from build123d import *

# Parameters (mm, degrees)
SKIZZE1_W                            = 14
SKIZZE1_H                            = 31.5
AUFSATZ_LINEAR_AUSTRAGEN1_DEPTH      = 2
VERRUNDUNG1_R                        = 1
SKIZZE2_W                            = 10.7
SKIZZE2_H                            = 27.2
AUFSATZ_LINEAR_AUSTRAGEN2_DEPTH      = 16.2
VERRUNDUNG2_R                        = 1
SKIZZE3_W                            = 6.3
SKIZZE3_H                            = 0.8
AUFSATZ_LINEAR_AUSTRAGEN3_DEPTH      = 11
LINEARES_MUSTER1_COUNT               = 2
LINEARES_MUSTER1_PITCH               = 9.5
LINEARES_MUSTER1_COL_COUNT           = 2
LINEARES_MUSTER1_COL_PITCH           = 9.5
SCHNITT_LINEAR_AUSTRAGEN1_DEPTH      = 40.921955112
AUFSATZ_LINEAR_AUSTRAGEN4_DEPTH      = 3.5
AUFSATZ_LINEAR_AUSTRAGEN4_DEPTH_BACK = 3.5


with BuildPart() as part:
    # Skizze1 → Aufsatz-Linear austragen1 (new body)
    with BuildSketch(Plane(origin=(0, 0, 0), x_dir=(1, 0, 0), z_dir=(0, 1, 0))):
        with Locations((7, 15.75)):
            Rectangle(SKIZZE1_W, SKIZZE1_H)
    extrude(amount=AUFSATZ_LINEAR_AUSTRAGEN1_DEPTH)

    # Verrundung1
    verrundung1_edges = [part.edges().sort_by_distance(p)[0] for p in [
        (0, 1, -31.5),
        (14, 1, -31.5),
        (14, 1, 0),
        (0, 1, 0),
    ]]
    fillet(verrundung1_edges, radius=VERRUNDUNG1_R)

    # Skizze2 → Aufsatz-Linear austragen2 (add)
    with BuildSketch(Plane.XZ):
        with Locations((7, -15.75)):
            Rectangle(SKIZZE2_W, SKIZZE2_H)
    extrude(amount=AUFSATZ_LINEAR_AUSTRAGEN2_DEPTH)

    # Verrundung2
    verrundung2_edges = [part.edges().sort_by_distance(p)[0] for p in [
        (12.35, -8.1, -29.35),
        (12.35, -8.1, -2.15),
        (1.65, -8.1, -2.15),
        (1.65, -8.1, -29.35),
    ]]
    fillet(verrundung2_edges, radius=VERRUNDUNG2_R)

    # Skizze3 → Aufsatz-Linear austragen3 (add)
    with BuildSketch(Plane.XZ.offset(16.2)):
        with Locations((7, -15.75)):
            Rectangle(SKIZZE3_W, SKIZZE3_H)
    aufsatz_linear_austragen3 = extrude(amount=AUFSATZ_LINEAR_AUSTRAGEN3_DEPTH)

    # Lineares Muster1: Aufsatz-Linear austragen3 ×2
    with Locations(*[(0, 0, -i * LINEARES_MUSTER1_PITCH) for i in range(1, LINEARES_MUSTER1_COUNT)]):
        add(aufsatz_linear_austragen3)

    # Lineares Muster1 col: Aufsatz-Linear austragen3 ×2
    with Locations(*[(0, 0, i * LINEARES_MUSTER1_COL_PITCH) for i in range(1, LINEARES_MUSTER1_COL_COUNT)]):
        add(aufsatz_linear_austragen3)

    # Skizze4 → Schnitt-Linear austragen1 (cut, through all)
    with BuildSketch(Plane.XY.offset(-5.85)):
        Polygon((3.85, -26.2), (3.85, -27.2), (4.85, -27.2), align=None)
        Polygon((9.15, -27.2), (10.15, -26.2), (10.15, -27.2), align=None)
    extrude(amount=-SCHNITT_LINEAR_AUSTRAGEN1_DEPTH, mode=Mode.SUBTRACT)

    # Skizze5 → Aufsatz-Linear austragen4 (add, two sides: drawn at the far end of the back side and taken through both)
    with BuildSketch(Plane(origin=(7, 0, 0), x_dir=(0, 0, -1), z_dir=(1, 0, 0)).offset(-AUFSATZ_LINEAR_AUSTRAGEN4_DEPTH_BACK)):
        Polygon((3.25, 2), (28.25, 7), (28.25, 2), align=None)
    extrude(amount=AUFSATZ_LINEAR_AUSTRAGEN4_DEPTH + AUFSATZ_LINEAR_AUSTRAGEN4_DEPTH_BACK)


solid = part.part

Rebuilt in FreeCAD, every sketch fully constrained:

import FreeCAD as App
import Part
import Sketcher
from FreeCAD import Vector
Q = App.Units.Quantity


def edges_at(feature, points):
    """Names of the edges that pass closest to the given points."""
    edges = feature.Shape.Edges
    near = lambda p: min(range(len(edges)), key=lambda i: edges[i].distToShape(Part.Vertex(*p))[0])
    return sorted({f"Edge{near(p) + 1}" for p in points})

doc = App.newDocument("Part")
body = doc.addObject("PartDesign::Body", "Body")

# Sketch on XZ plane
sketch1 = body.newObject("Sketcher::SketchObject", "Sketch")
sketch1.AttachmentSupport = (doc.getObject("XZ_Plane"), [""])
sketch1.MapMode = "FlatFace"
sketch1.addGeometry(Part.LineSegment(Vector(0, -31.5, 0), Vector(0, 0, 0)), False)
sketch1.addGeometry(Part.LineSegment(Vector(0, 0, 0), Vector(14, 0, 0)), False)
sketch1.addGeometry(Part.LineSegment(Vector(14, 0, 0), Vector(14, -31.5, 0)), False)
sketch1.addGeometry(Part.LineSegment(Vector(14, -31.5, 0), Vector(0, -31.5, 0)), False)
sketch1.addConstraint(Sketcher.Constraint("Coincident", 0, 2, 1, 1))
sketch1.addConstraint(Sketcher.Constraint("Coincident", 1, 2, 2, 1))
sketch1.addConstraint(Sketcher.Constraint("Coincident", 2, 2, 3, 1))
sketch1.addConstraint(Sketcher.Constraint("Coincident", 3, 2, 0, 1))
sketch1.addConstraint(Sketcher.Constraint("Vertical", 0))
sketch1.addConstraint(Sketcher.Constraint("Horizontal", 1))
sketch1.addConstraint(Sketcher.Constraint("Vertical", 2))
sketch1.addConstraint(Sketcher.Constraint("Horizontal", 3))
sketch1.addConstraint(Sketcher.Constraint("Coincident", 0, 2, -1, 1))
sketch1.addConstraint(Sketcher.Constraint("DistanceX", 1, 1, 1, 2, Q("14 mm")))
sketch1.addConstraint(Sketcher.Constraint("DistanceY", 0, 1, 0, 2, Q("31.5 mm")))
pad1 = body.newObject("PartDesign::Pad", "Pad")
pad1.Profile = sketch1
pad1.Length = 2
pad1.Reversed = True
doc.recompute()

fillet = body.newObject("PartDesign::Fillet", "Fillet")
fillet.Base = (pad1, edges_at(pad1, [
    (0, 1, -31.5),
    (14, 1, -31.5),
    (14, 1, 0),
    (0, 1, 0),
]))
fillet.Radius = 1

# Sketch on XZ plane
sketch2 = body.newObject("Sketcher::SketchObject", "Sketch001")
sketch2.AttachmentSupport = (doc.getObject("XZ_Plane"), [""])
sketch2.MapMode = "FlatFace"
sketch2.addGeometry(Part.LineSegment(Vector(1.65, -2.15, 0), Vector(1.65, -29.35, 0)), False)
sketch2.addGeometry(Part.LineSegment(Vector(1.65, -29.35, 0), Vector(12.35, -29.35, 0)), False)
sketch2.addGeometry(Part.LineSegment(Vector(12.35, -29.35, 0), Vector(12.35, -2.15, 0)), False)
sketch2.addGeometry(Part.LineSegment(Vector(12.35, -2.15, 0), Vector(1.65, -2.15, 0)), False)
sketch2.addConstraint(Sketcher.Constraint("Coincident", 0, 2, 1, 1))
sketch2.addConstraint(Sketcher.Constraint("Coincident", 1, 2, 2, 1))
sketch2.addConstraint(Sketcher.Constraint("Coincident", 2, 2, 3, 1))
sketch2.addConstraint(Sketcher.Constraint("Coincident", 3, 2, 0, 1))
sketch2.addConstraint(Sketcher.Constraint("Vertical", 0))
sketch2.addConstraint(Sketcher.Constraint("Horizontal", 1))
sketch2.addConstraint(Sketcher.Constraint("Vertical", 2))
sketch2.addConstraint(Sketcher.Constraint("Horizontal", 3))
sketch2.addConstraint(Sketcher.Constraint("DistanceX", 1, 1, 1, 2, Q("10.7 mm")))
sketch2.addConstraint(Sketcher.Constraint("DistanceY", 0, 2, 0, 1, Q("27.2 mm")))
sketch2.addConstraint(Sketcher.Constraint("DistanceX", -1, 1, 0, 2, Q("1.65 mm")))
sketch2.addConstraint(Sketcher.Constraint("DistanceY", 0, 2, -1, 1, Q("29.35 mm")))
pad2 = body.newObject("PartDesign::Pad", "Pad001")
pad2.Profile = sketch2
pad2.Length = 16.2
doc.recompute()

fillet2 = body.newObject("PartDesign::Fillet", "Fillet001")
fillet2.Base = (pad2, edges_at(pad2, [
    (12.35, -8.1, -29.35),
    (12.35, -8.1, -2.15),
    (1.65, -8.1, -2.15),
    (1.65, -8.1, -29.35),
]))
fillet2.Radius = 1

# Sketch on XZ plane
sketch3 = body.newObject("Sketcher::SketchObject", "Sketch002")
sketch3.AttachmentSupport = (doc.getObject("XZ_Plane"), [""])
sketch3.MapMode = "FlatFace"
sketch3.AttachmentOffset = App.Placement(Vector(0, 0, 16.2), App.Rotation())
sketch3.addGeometry(Part.LineSegment(Vector(3.85, -15.35, 0), Vector(3.85, -16.15, 0)), False)
sketch3.addGeometry(Part.LineSegment(Vector(3.85, -16.15, 0), Vector(10.15, -16.15, 0)), False)
sketch3.addGeometry(Part.LineSegment(Vector(10.15, -16.15, 0), Vector(10.15, -15.35, 0)), False)
sketch3.addGeometry(Part.LineSegment(Vector(10.15, -15.35, 0), Vector(3.85, -15.35, 0)), False)
sketch3.addConstraint(Sketcher.Constraint("Coincident", 0, 2, 1, 1))
sketch3.addConstraint(Sketcher.Constraint("Coincident", 1, 2, 2, 1))
sketch3.addConstraint(Sketcher.Constraint("Coincident", 2, 2, 3, 1))
sketch3.addConstraint(Sketcher.Constraint("Coincident", 3, 2, 0, 1))
sketch3.addConstraint(Sketcher.Constraint("Vertical", 0))
sketch3.addConstraint(Sketcher.Constraint("Horizontal", 1))
sketch3.addConstraint(Sketcher.Constraint("Vertical", 2))
sketch3.addConstraint(Sketcher.Constraint("Horizontal", 3))
sketch3.addConstraint(Sketcher.Constraint("DistanceX", 1, 1, 1, 2, Q("6.3 mm")))
sketch3.addConstraint(Sketcher.Constraint("DistanceY", 0, 2, 0, 1, Q("0.8 mm")))
sketch3.addConstraint(Sketcher.Constraint("DistanceX", -1, 1, 0, 2, Q("3.85 mm")))
sketch3.addConstraint(Sketcher.Constraint("DistanceY", 0, 2, -1, 1, Q("16.15 mm")))
pad3 = body.newObject("PartDesign::Pad", "Pad002")
pad3.Profile = sketch3
pad3.Length = 11
doc.recompute()

linearpattern = body.newObject("PartDesign::LinearPattern", "LinearPattern")
linearpattern.Originals = [pad3]
linearpattern.Direction = (doc.getObject("Z_Axis"), [""])
linearpattern.Mode = "offset"
linearpattern.Offset = 9.5
linearpattern.Occurrences = 2
linearpattern.Reversed = True
body.Tip = linearpattern
doc.recompute()

linearpattern2 = body.newObject("PartDesign::LinearPattern", "LinearPattern001")
linearpattern2.Originals = [pad3]
linearpattern2.Direction = (doc.getObject("Z_Axis"), [""])
linearpattern2.Mode = "offset"
linearpattern2.Offset = 9.5
linearpattern2.Occurrences = 2
body.Tip = linearpattern2

# Sketch on XY plane
sketch4 = body.newObject("Sketcher::SketchObject", "Sketch003")
sketch4.AttachmentSupport = (doc.getObject("XY_Plane"), [""])
sketch4.MapMode = "FlatFace"
sketch4.AttachmentOffset = App.Placement(Vector(0, 0, -5.85), App.Rotation())
sketch4.addGeometry(Part.LineSegment(Vector(3.85, -26.2, 0), Vector(3.85, -27.2, 0)), False)
sketch4.addGeometry(Part.LineSegment(Vector(3.85, -27.2, 0), Vector(4.85, -27.2, 0)), False)
sketch4.addGeometry(Part.LineSegment(Vector(4.85, -27.2, 0), Vector(3.85, -26.2, 0)), False)
sketch4.addGeometry(Part.LineSegment(Vector(10.15, -26.2, 0), Vector(9.15, -27.2, 0)), False)
sketch4.addGeometry(Part.LineSegment(Vector(9.15, -27.2, 0), Vector(10.15, -27.2, 0)), False)
sketch4.addGeometry(Part.LineSegment(Vector(10.15, -27.2, 0), Vector(10.15, -26.2, 0)), False)
sketch4.addConstraint(Sketcher.Constraint("Coincident", 0, 2, 1, 1))
sketch4.addConstraint(Sketcher.Constraint("Coincident", 1, 2, 2, 1))
sketch4.addConstraint(Sketcher.Constraint("Coincident", 2, 2, 0, 1))
sketch4.addConstraint(Sketcher.Constraint("Coincident", 3, 2, 4, 1))
sketch4.addConstraint(Sketcher.Constraint("Coincident", 4, 2, 5, 1))
sketch4.addConstraint(Sketcher.Constraint("Coincident", 5, 2, 3, 1))
sketch4.addConstraint(Sketcher.Constraint("Vertical", 0))
sketch4.addConstraint(Sketcher.Constraint("Horizontal", 1))
sketch4.addConstraint(Sketcher.Constraint("Horizontal", 4))
sketch4.addConstraint(Sketcher.Constraint("Vertical", 5))
sketch4.addConstraint(Sketcher.Constraint("Perpendicular", 2, 3))
sketch4.addConstraint(Sketcher.Constraint("Horizontal", 1, 2, 3, 2))
sketch4.addConstraint(Sketcher.Constraint("Horizontal", 2, 2, 5, 2))
sketch4.addConstraint(Sketcher.Constraint("Equal", 1, 4))
sketch4.addConstraint(Sketcher.Constraint("DistanceX", 1, 1, 1, 2, Q("1 mm")))
sketch4.addConstraint(Sketcher.Constraint("DistanceY", 0, 2, -1, 1, Q("27.2 mm")))
sketch4.addConstraint(Sketcher.Constraint("DistanceX", 1, 2, 3, 2, Q("4.3 mm")))
sketch4.addConstraint(Sketcher.Constraint("DistanceX", -1, 1, 0, 2, Q("3.85 mm")))
pocket1 = body.newObject("PartDesign::Pocket", "Pocket")
pocket1.Profile = sketch4
pocket1.Type = "ThroughAll"

# Sketch on YZ plane
sketch5 = body.newObject("Sketcher::SketchObject", "Sketch004")
sketch5.AttachmentSupport = (doc.getObject("YZ_Plane"), [""])
sketch5.MapMode = "FlatFace"
sketch5.AttachmentOffset = App.Placement(Vector(0, 0, 7), App.Rotation())
sketch5.addGeometry(Part.LineSegment(Vector(7, -28.25, 0), Vector(2, -3.25, 0)), False)
sketch5.addGeometry(Part.LineSegment(Vector(2, -3.25, 0), Vector(2, -28.25, 0)), False)
sketch5.addGeometry(Part.LineSegment(Vector(2, -28.25, 0), Vector(7, -28.25, 0)), False)
sketch5.addConstraint(Sketcher.Constraint("Coincident", 0, 2, 1, 1))
sketch5.addConstraint(Sketcher.Constraint("Coincident", 1, 2, 2, 1))
sketch5.addConstraint(Sketcher.Constraint("Coincident", 2, 2, 0, 1))
sketch5.addConstraint(Sketcher.Constraint("Vertical", 1))
sketch5.addConstraint(Sketcher.Constraint("Horizontal", 2))
sketch5.addConstraint(Sketcher.Constraint("DistanceX", 2, 1, 2, 2, Q("5 mm")))
sketch5.addConstraint(Sketcher.Constraint("DistanceY", 1, 2, 1, 1, Q("25 mm")))
sketch5.addConstraint(Sketcher.Constraint("DistanceX", -1, 1, 0, 2, Q("2 mm")))
sketch5.addConstraint(Sketcher.Constraint("DistanceY", 0, 2, -1, 1, Q("3.25 mm")))
pad4 = body.newObject("PartDesign::Pad", "Pad003")
pad4.Profile = sketch5
pad4.Type = "TwoLengths"
pad4.Length = 3.5
pad4.Length2 = 3.5

doc.recompute()
